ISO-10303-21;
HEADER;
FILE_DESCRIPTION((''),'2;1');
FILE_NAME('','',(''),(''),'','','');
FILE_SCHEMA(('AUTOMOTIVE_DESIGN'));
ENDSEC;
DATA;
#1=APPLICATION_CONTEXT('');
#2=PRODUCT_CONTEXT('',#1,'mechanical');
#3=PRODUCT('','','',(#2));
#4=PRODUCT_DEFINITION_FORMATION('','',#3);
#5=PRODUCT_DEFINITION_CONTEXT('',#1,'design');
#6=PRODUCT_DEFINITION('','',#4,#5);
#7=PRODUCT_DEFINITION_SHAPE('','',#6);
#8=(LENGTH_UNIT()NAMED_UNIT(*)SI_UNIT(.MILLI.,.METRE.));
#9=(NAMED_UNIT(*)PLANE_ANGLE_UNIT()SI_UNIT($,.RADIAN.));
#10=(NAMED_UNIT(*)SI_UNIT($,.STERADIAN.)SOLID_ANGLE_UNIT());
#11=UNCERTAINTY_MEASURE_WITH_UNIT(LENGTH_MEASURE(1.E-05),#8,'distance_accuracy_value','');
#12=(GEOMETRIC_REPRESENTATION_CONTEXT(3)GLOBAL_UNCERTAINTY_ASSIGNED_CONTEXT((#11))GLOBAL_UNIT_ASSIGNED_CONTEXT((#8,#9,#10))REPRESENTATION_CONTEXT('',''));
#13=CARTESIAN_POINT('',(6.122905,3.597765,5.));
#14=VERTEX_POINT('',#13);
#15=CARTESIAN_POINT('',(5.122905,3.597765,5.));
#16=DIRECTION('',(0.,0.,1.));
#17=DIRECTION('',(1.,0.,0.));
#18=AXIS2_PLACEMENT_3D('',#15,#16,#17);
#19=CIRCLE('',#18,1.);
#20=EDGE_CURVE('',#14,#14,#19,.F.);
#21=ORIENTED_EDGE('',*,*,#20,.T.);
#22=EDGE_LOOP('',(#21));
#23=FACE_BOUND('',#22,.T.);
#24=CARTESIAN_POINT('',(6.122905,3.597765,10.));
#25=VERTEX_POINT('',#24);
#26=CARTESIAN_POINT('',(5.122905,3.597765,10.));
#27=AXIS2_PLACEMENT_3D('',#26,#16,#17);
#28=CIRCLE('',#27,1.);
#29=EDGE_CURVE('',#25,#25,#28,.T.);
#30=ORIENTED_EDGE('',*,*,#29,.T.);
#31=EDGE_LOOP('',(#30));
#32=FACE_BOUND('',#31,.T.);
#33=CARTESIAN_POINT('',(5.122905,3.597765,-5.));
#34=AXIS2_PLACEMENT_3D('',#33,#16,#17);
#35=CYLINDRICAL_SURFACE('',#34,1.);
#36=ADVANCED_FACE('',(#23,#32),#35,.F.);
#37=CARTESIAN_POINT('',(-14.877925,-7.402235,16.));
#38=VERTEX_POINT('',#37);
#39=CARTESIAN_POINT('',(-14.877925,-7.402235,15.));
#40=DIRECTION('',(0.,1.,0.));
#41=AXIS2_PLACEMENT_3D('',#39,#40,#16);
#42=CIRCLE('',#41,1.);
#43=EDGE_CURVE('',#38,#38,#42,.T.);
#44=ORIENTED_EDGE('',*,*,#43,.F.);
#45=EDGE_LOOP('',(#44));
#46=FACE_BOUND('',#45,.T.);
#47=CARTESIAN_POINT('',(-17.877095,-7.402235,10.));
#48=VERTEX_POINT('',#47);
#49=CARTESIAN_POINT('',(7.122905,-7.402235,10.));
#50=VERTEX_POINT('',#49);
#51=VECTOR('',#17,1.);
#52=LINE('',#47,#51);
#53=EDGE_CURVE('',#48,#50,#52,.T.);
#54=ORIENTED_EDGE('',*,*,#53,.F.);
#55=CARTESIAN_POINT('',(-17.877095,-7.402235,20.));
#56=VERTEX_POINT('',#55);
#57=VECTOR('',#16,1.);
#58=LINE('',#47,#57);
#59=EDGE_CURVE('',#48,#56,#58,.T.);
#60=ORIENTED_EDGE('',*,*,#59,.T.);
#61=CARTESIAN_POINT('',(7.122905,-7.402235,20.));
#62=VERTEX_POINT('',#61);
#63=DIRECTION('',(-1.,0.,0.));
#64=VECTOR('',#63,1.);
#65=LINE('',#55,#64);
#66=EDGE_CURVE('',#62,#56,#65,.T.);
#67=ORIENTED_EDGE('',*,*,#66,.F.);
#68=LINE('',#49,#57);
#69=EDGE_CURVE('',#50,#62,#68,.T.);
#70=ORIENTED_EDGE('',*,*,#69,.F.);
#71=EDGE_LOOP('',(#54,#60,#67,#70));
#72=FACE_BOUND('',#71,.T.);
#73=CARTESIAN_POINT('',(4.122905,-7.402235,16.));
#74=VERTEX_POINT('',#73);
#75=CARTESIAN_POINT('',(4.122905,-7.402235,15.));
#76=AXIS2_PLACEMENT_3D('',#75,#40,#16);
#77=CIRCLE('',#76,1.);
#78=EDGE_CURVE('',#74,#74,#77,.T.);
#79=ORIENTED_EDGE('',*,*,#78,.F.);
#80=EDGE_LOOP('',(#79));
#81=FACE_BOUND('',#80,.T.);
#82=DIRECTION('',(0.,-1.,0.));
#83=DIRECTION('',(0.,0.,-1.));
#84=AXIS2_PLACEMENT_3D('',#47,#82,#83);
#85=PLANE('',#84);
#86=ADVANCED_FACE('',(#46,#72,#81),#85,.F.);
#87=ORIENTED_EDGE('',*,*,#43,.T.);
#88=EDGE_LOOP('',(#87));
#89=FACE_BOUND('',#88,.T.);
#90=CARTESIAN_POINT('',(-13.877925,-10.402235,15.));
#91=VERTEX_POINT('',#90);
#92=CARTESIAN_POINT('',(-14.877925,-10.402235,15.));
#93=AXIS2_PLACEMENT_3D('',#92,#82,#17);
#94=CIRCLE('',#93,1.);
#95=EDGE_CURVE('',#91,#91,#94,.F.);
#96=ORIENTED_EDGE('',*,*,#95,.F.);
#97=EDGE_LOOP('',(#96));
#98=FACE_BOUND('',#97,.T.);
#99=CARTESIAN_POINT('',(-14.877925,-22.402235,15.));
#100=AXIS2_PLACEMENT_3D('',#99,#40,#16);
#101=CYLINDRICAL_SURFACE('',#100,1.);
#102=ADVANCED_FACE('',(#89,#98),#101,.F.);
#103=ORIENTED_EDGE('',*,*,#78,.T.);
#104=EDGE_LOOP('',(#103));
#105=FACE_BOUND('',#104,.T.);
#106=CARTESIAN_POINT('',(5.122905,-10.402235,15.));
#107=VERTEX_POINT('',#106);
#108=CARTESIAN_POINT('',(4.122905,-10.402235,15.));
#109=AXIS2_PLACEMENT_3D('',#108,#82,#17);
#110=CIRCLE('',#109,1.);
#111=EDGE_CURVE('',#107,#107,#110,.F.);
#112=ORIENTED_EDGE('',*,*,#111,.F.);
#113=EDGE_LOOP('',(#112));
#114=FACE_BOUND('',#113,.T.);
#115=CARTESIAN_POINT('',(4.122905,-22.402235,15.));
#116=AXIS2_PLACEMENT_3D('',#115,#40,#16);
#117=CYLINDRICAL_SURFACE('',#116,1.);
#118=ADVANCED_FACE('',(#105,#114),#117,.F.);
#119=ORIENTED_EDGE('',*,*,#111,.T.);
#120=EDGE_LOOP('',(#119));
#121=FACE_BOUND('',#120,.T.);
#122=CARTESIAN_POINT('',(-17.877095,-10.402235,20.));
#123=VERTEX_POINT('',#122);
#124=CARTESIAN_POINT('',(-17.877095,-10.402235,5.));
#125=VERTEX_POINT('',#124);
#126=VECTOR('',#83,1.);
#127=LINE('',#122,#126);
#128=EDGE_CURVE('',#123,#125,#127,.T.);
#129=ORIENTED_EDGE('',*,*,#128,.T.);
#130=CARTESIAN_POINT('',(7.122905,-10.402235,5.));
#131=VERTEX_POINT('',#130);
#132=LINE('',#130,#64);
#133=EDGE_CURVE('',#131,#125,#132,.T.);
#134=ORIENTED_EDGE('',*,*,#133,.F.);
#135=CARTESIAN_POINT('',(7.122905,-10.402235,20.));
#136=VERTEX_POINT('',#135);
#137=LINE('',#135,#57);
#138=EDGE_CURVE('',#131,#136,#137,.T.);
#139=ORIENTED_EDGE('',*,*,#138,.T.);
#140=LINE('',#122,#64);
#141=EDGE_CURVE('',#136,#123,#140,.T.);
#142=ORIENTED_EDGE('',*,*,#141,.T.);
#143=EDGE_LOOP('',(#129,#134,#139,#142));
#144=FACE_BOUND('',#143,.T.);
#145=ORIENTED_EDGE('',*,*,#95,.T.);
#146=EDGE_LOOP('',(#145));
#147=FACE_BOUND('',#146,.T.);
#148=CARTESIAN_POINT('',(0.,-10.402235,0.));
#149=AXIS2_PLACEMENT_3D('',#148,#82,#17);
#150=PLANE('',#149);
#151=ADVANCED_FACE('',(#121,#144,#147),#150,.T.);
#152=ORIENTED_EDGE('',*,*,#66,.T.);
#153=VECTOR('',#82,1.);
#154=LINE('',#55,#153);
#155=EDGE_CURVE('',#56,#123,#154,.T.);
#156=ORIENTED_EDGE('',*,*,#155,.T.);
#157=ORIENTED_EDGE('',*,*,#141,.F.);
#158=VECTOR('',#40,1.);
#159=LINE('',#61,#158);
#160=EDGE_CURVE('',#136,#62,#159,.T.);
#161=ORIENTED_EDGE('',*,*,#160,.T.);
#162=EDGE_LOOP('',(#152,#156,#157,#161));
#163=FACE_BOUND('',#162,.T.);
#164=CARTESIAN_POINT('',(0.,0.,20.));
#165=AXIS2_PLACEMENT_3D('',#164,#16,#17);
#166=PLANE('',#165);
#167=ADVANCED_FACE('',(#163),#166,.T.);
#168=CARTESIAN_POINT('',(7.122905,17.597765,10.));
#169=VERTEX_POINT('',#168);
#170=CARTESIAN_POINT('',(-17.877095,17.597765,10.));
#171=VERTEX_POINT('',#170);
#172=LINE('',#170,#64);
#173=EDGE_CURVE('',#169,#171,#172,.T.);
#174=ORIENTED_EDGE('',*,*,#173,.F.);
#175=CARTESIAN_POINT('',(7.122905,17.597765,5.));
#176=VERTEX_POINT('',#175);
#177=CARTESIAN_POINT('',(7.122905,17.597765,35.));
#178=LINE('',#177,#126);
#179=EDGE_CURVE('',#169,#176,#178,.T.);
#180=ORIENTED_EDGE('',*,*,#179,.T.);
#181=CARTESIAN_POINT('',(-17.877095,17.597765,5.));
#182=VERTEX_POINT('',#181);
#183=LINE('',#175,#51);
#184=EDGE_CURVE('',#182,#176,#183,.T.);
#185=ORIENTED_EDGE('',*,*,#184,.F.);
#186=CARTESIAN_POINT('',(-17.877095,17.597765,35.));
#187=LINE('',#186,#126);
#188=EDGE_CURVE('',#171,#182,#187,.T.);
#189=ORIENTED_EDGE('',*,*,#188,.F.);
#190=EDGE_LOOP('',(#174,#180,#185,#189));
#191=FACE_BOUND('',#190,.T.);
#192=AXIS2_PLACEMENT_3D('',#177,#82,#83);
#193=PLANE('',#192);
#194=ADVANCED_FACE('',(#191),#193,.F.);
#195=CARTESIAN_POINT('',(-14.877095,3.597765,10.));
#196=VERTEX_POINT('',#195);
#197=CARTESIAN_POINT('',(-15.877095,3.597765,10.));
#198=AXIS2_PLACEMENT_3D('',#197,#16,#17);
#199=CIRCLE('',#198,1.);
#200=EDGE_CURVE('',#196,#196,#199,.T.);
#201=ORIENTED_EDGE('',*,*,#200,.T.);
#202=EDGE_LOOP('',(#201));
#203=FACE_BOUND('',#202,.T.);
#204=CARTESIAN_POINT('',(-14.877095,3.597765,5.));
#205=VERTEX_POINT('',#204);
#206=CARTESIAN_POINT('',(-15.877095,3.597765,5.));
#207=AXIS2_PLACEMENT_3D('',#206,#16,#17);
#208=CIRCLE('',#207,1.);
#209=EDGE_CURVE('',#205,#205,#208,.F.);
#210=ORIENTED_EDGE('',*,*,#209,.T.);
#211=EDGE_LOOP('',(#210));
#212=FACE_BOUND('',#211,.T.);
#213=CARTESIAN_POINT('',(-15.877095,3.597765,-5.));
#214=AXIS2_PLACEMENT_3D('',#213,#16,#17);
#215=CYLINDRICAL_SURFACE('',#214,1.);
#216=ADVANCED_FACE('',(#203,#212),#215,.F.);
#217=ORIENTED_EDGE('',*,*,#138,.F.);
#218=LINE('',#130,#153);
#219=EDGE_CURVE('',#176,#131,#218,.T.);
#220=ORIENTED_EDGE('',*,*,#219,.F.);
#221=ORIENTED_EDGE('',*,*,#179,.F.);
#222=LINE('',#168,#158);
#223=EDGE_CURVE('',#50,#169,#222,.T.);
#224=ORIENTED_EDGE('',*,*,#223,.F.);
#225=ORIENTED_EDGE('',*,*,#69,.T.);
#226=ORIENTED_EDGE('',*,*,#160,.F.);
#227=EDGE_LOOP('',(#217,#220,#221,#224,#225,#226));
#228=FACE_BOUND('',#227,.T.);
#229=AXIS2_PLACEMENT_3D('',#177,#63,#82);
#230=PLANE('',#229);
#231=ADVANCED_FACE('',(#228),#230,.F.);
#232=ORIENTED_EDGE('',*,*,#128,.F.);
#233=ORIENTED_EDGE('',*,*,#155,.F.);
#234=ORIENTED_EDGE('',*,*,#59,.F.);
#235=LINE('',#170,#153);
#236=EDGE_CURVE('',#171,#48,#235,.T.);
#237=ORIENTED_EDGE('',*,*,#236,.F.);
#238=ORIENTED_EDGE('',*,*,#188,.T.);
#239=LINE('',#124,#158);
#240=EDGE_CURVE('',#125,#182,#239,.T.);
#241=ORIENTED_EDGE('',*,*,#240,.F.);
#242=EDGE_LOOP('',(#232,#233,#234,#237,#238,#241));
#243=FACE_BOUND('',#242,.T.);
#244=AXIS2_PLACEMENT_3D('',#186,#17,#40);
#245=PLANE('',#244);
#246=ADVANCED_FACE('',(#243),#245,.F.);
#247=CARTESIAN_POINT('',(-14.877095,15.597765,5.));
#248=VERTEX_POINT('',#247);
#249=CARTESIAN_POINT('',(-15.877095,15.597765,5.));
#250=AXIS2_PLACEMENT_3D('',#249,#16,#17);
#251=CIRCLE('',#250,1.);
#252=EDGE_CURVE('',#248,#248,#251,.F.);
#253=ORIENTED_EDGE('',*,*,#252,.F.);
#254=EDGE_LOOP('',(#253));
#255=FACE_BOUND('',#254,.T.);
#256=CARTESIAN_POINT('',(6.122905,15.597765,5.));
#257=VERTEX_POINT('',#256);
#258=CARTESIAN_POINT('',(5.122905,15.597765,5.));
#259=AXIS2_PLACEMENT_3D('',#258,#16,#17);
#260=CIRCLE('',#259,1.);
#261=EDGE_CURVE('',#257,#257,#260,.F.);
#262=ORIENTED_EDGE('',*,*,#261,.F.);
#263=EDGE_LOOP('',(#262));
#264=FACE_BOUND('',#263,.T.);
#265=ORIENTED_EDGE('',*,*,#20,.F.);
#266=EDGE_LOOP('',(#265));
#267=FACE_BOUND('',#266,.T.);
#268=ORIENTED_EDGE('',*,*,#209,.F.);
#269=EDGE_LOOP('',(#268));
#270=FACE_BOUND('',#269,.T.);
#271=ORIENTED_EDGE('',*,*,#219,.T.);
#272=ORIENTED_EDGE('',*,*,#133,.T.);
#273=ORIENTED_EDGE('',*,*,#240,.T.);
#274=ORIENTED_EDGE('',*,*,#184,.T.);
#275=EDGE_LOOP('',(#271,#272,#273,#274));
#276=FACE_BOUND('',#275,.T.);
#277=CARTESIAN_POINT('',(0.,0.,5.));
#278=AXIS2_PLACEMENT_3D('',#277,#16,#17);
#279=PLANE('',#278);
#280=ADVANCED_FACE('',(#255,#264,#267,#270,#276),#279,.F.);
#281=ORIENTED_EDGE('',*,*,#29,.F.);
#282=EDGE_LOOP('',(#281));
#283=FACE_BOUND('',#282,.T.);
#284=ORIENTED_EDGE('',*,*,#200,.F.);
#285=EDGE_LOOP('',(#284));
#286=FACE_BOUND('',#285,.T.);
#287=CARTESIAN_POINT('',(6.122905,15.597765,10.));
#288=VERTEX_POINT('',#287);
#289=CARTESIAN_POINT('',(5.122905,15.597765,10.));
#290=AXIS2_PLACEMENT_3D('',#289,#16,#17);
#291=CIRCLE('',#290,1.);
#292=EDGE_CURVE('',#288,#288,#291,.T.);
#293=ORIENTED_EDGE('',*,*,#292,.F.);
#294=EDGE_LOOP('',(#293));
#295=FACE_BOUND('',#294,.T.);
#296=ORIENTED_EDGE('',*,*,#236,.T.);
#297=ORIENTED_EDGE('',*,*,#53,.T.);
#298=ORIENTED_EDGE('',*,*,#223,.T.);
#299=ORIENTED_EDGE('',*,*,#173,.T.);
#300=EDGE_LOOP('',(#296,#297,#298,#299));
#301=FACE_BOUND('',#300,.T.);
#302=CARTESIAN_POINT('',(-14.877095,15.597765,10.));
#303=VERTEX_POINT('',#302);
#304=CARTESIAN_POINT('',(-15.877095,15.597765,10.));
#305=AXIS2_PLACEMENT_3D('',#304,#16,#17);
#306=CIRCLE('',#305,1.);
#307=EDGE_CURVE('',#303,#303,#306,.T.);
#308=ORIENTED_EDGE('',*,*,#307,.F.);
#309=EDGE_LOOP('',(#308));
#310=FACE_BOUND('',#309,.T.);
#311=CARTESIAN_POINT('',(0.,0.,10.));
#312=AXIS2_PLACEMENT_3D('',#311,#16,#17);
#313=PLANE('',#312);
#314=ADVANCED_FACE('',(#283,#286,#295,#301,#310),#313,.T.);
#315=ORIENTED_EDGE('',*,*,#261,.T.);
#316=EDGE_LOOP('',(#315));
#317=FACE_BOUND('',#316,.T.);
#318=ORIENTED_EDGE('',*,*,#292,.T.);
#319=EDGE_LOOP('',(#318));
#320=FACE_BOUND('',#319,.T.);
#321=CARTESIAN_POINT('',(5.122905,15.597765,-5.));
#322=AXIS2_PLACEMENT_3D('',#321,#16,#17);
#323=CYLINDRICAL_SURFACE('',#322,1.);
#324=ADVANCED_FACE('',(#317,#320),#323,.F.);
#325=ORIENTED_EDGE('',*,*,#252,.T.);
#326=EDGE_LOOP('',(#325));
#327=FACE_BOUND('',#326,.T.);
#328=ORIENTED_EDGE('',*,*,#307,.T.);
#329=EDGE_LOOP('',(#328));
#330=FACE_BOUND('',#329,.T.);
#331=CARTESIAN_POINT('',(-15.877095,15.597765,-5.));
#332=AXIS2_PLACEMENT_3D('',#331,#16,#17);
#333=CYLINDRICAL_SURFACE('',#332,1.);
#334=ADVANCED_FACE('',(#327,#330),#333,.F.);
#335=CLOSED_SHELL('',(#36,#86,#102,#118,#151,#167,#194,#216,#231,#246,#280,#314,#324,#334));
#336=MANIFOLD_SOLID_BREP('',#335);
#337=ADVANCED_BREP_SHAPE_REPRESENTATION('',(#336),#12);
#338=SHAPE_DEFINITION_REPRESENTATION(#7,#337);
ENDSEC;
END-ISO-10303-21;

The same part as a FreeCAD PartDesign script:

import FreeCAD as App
import Part
import Sketcher
from FreeCAD import Vector
Q = App.Units.Quantity

doc = App.newDocument("Part")
body = doc.addObject("PartDesign::Body", "Body")

# Sketch on XY plane
sketch1 = body.newObject("Sketcher::SketchObject", "Sketch")
sketch1.AttachmentSupport = (doc.getObject("XY_Plane"), [""])
sketch1.MapMode = "FlatFace"
sketch1.addGeometry(Part.LineSegment(Vector(-17.877095, 17.597765, 0), Vector(-17.877095, -17.402235, 0)), False)
sketch1.addGeometry(Part.LineSegment(Vector(-17.877095, -17.402235, 0), Vector(7.122905, -17.402235, 0)), False)
sketch1.addGeometry(Part.LineSegment(Vector(7.122905, -17.402235, 0), Vector(7.122905, 17.597765, 0)), False)
sketch1.addGeometry(Part.LineSegment(Vector(7.122905, 17.597765, 0), Vector(-17.877095, 17.597765, 0)), False)
sketch1.addConstraint(Sketcher.Constraint("Coincident", 0, 2, 1, 1))
sketch1.addConstraint(Sketcher.Constraint("Coincident", 1, 2, 2, 1))
sketch1.addConstraint(Sketcher.Constraint("Coincident", 2, 2, 3, 1))
sketch1.addConstraint(Sketcher.Constraint("Coincident", 3, 2, 0, 1))
sketch1.addConstraint(Sketcher.Constraint("Vertical", 0))
sketch1.addConstraint(Sketcher.Constraint("Horizontal", 1))
sketch1.addConstraint(Sketcher.Constraint("Vertical", 2))
sketch1.addConstraint(Sketcher.Constraint("Horizontal", 3))
sketch1.addConstraint(Sketcher.Constraint("DistanceX", 1, 1, 1, 2, Q("25 mm")))
sketch1.addConstraint(Sketcher.Constraint("DistanceY", 0, 2, 0, 1, Q("35 mm")))
sketch1.addConstraint(Sketcher.Constraint("DistanceX", 0, 2, -1, 1, Q("17.877095 mm")))
sketch1.addConstraint(Sketcher.Constraint("DistanceY", 0, 2, -1, 1, Q("17.402235 mm")))
pad1 = body.newObject("PartDesign::Pad", "Pad")
pad1.Profile = sketch1
pad1.Length = 35

# Sketch on XY plane
sketch2 = body.newObject("Sketcher::SketchObject", "Sketch001")
sketch2.AttachmentSupport = (doc.getObject("XY_Plane"), [""])
sketch2.MapMode = "FlatFace"
sketch2.AttachmentOffset = App.Placement(Vector(0, 0, 35), App.Rotation())
sketch2.addGeometry(Part.LineSegment(Vector(-17.877095, 17.597765, 0), Vector(-17.877095, -7.402235, 0)), False)
sketch2.addGeometry(Part.LineSegment(Vector(-17.877095, -7.402235, 0), Vector(7.122905, -7.402235, 0)), False)
sketch2.addGeometry(Part.LineSegment(Vector(7.122905, -7.402235, 0), Vector(7.122905, 17.597765, 0)), False)
sketch2.addGeometry(Part.LineSegment(Vector(7.122905, 17.597765, 0), Vector(-17.877095, 17.597765, 0)), False)
sketch2.addConstraint(Sketcher.Constraint("Coincident", 0, 2, 1, 1))
sketch2.addConstraint(Sketcher.Constraint("Coincident", 1, 2, 2, 1))
sketch2.addConstraint(Sketcher.Constraint("Coincident", 2, 2, 3, 1))
sketch2.addConstraint(Sketcher.Constraint("Coincident", 3, 2, 0, 1))
sketch2.addConstraint(Sketcher.Constraint("Vertical", 0))
sketch2.addConstraint(Sketcher.Constraint("Horizontal", 1))
sketch2.addConstraint(Sketcher.Constraint("Vertical", 2))
sketch2.addConstraint(Sketcher.Constraint("Horizontal", 3))
sketch2.addConstraint(Sketcher.Constraint("Equal", 3, 0))
sketch2.addConstraint(Sketcher.Constraint("DistanceX", 1, 1, 1, 2, Q("25 mm")))
sketch2.addConstraint(Sketcher.Constraint("DistanceX", 0, 2, -1, 1, Q("17.877095 mm")))
sketch2.addConstraint(Sketcher.Constraint("DistanceY", 0, 2, -1, 1, Q("7.402235 mm")))
pocket1 = body.newObject("PartDesign::Pocket", "Pocket")
pocket1.Profile = sketch2
pocket1.Length = 25

# Sketch on XY plane
sketch3 = body.newObject("Sketcher::SketchObject", "Sketch002")
sketch3.AttachmentSupport = (doc.getObject("XY_Plane"), [""])
sketch3.MapMode = "FlatFace"
sketch3.AttachmentOffset = App.Placement(Vector(0, 0, 35), App.Rotation())
sketch3.addGeometry(Part.LineSegment(Vector(-17.877095, -7.402235, 0), Vector(-17.877095, -17.402235, 0)), False)
sketch3.addGeometry(Part.LineSegment(Vector(-17.877095, -17.402235, 0), Vector(7.122905, -17.402235, 0)), False)
sketch3.addGeometry(Part.LineSegment(Vector(7.122905, -17.402235, 0), Vector(7.122905, -7.402235, 0)), False)
sketch3.addGeometry(Part.LineSegment(Vector(7.122905, -7.402235, 0), Vector(-17.877095, -7.402235, 0)), False)
sketch3.addConstraint(Sketcher.Constraint("Coincident", 0, 2, 1, 1))
sketch3.addConstraint(Sketcher.Constraint("Coincident", 1, 2, 2, 1))
sketch3.addConstraint(Sketcher.Constraint("Coincident", 2, 2, 3, 1))
sketch3.addConstraint(Sketcher.Constraint("Coincident", 3, 2, 0, 1))
sketch3.addConstraint(Sketcher.Constraint("Vertical", 0))
sketch3.addConstraint(Sketcher.Constraint("Horizontal", 1))
sketch3.addConstraint(Sketcher.Constraint("Vertical", 2))
sketch3.addConstraint(Sketcher.Constraint("Horizontal", 3))
sketch3.addConstraint(Sketcher.Constraint("DistanceX", 1, 1, 1, 2, Q("25 mm")))
sketch3.addConstraint(Sketcher.Constraint("DistanceY", 0, 2, 0, 1, Q("10 mm")))
sketch3.addConstraint(Sketcher.Constraint("DistanceX", 0, 2, -1, 1, Q("17.877095 mm")))
sketch3.addConstraint(Sketcher.Constraint("DistanceY", 0, 2, -1, 1, Q("17.402235 mm")))
pocket2 = body.newObject("PartDesign::Pocket", "Pocket001")
pocket2.Profile = sketch3
pocket2.Length = 15

# Sketch on XZ plane
sketch4 = body.newObject("Sketcher::SketchObject", "Sketch003")
sketch4.AttachmentSupport = (doc.getObject("XZ_Plane"), [""])
sketch4.MapMode = "FlatFace"
sketch4.AttachmentOffset = App.Placement(Vector(0, 0, 7.402235), App.Rotation())
sketch4.addGeometry(Part.Circle(Vector(-14.877925, 15, 0), Vector(0, 0, 1), 1), False)
sketch4.addGeometry(Part.Circle(Vector(4.122905, 15, 0), Vector(0, 0, 1), 1), False)
sketch4.addConstraint(Sketcher.Constraint("Equal", 0, 1))
sketch4.addConstraint(Sketcher.Constraint("Horizontal", 0, 3, 1, 3))
sketch4.addConstraint(Sketcher.Constraint("Diameter", 0, Q("2 mm")))
sketch4.addConstraint(Sketcher.Constraint("DistanceY", -1, 1, 0, 3, Q("15 mm")))
sketch4.addConstraint(Sketcher.Constraint("DistanceX", 0, 3, 1, 3, Q("19.00083 mm")))
sketch4.addConstraint(Sketcher.Constraint("DistanceX", 0, 3, -1, 1, Q("14.877925 mm")))
pocket3 = body.newObject("PartDesign::Pocket", "Pocket002")
pocket3.Profile = sketch4
pocket3.Length = 15
pocket3.Reversed = True

# Sketch on XZ plane
sketch5 = body.newObject("Sketcher::SketchObject", "Sketch004")
sketch5.AttachmentSupport = (doc.getObject("XZ_Plane"), [""])
sketch5.MapMode = "FlatFace"
sketch5.AttachmentOffset = App.Placement(Vector(0, 0, 17.402235), App.Rotation())
sketch5.addGeometry(Part.LineSegment(Vector(-17.877095, 20, 0), Vector(-17.877095, 0, 0)), False)
sketch5.addGeometry(Part.LineSegment(Vector(-17.877095, 0, 0), Vector(7.122905, 0, 0)), False)
sketch5.addGeometry(Part.LineSegment(Vector(7.122905, 0, 0), Vector(7.122905, 20, 0)), False)
sketch5.addGeometry(Part.LineSegment(Vector(7.122905, 20, 0), Vector(-17.877095, 20, 0)), False)
sketch5.addConstraint(Sketcher.Constraint("Coincident", 0, 2, 1, 1))
sketch5.addConstraint(Sketcher.Constraint("Coincident", 1, 2, 2, 1))
sketch5.addConstraint(Sketcher.Constraint("Coincident", 2, 2, 3, 1))
sketch5.addConstraint(Sketcher.Constraint("Coincident", 3, 2, 0, 1))
sketch5.addConstraint(Sketcher.Constraint("Vertical", 0))
sketch5.addConstraint(Sketcher.Constraint("Horizontal", 1))
sketch5.addConstraint(Sketcher.Constraint("Vertical", 2))
sketch5.addConstraint(Sketcher.Constraint("Horizontal", 3))
sketch5.addConstraint(Sketcher.Constraint("PointOnObject", 0, 2, -1))
sketch5.addConstraint(Sketcher.Constraint("DistanceX", 1, 1, 1, 2, Q("25 mm")))
sketch5.addConstraint(Sketcher.Constraint("DistanceY", 0, 2, 0, 1, Q("20 mm")))
sketch5.addConstraint(Sketcher.Constraint("DistanceX", 0, 2, -1, 1, Q("17.877095 mm")))
pocket4 = body.newObject("PartDesign::Pocket", "Pocket003")
pocket4.Profile = sketch5
pocket4.Length = 7

# Sketch on XY plane
sketch6 = body.newObject("Sketcher::SketchObject", "Sketch005")
sketch6.AttachmentSupport = (doc.getObject("XY_Plane"), [""])
sketch6.MapMode = "FlatFace"
sketch6.AttachmentOffset = App.Placement(Vector(0, 0, 10), App.Rotation())
sketch6.addGeometry(Part.Circle(Vector(-15.877095, 15.597765, 0), Vector(0, 0, 1), 1), False)
sketch6.addGeometry(Part.Circle(Vector(5.122905, 15.597765, 0), Vector(0, 0, 1), 1), False)
sketch6.addGeometry(Part.Circle(Vector(-15.877095, 3.597765, 0), Vector(0, 0, 1), 1), False)
sketch6.addGeometry(Part.Circle(Vector(5.122905, 3.597765, 0), Vector(0, 0, 1), 1), False)
sketch6.addConstraint(Sketcher.Constraint("Equal", 0, 1))
sketch6.addConstraint(Sketcher.Constraint("Equal", 1, 2))
sketch6.addConstraint(Sketcher.Constraint("Equal", 2, 3))
sketch6.addConstraint(Sketcher.Constraint("Horizontal", 0, 3, 1, 3))
sketch6.addConstraint(Sketcher.Constraint("Horizontal", 2, 3, 3, 3))
sketch6.addConstraint(Sketcher.Constraint("Vertical", 0, 3, 2, 3))
sketch6.addConstraint(Sketcher.Constraint("Vertical", 1, 3, 3, 3))
sketch6.addConstraint(Sketcher.Constraint("Diameter", 0, Q("2 mm")))
sketch6.addConstraint(Sketcher.Constraint("DistanceX", 0, 3, 1, 3, Q("21 mm")))
sketch6.addConstraint(Sketcher.Constraint("DistanceY", 2, 3, 0, 3, Q("12 mm")))
sketch6.addConstraint(Sketcher.Constraint("DistanceX", 0, 3, -1, 1, Q("15.877095 mm")))
sketch6.addConstraint(Sketcher.Constraint("DistanceY", -1, 1, 0, 3, Q("15.597765 mm")))
pocket5 = body.newObject("PartDesign::Pocket", "Pocket004")
pocket5.Profile = sketch6
pocket5.Length = 15

# Sketch on XY plane
sketch7 = body.newObject("Sketcher::SketchObject", "Sketch006")
sketch7.AttachmentSupport = (doc.getObject("XY_Plane"), [""])
sketch7.MapMode = "FlatFace"
sketch7.addGeometry(Part.LineSegment(Vector(7.122905, 17.597765, 0), Vector(7.122905, -10.402235, 0)), False)
sketch7.addGeometry(Part.LineSegment(Vector(7.122905, -10.402235, 0), Vector(-17.877095, -10.402235, 0)), False)
sketch7.addGeometry(Part.LineSegment(Vector(-17.877095, -10.402235, 0), Vector(-17.877095, 17.597765, 0)), False)
sketch7.addGeometry(Part.LineSegment(Vector(-17.877095, 17.597765, 0), Vector(7.122905, 17.597765, 0)), False)
sketch7.addConstraint(Sketcher.Constraint("Coincident", 0, 2, 1, 1))
sketch7.addConstraint(Sketcher.Constraint("Coincident", 1, 2, 2, 1))
sketch7.addConstraint(Sketcher.Constraint("Coincident", 2, 2, 3, 1))
sketch7.addConstraint(Sketcher.Constraint("Coincident", 3, 2, 0, 1))
sketch7.addConstraint(Sketcher.Constraint("Vertical", 0))
sketch7.addConstraint(Sketcher.Constraint("Horizontal", 1))
sketch7.addConstraint(Sketcher.Constraint("Vertical", 2))
sketch7.addConstraint(Sketcher.Constraint("Horizontal", 3))
sketch7.addConstraint(Sketcher.Constraint("DistanceX", 1, 2, 1, 1, Q("25 mm")))
sketch7.addConstraint(Sketcher.Constraint("DistanceY", 0, 2, 0, 1, Q("28 mm")))
sketch7.addConstraint(Sketcher.Constraint("DistanceX", -1, 1, 0, 2, Q("7.122905 mm")))
sketch7.addConstraint(Sketcher.Constraint("DistanceY", 0, 2, -1, 1, Q("10.402235 mm")))
pocket6 = body.newObject("PartDesign::Pocket", "Pocket005")
pocket6.Profile = sketch7
pocket6.Length = 5
pocket6.Reversed = True

doc.recompute()
